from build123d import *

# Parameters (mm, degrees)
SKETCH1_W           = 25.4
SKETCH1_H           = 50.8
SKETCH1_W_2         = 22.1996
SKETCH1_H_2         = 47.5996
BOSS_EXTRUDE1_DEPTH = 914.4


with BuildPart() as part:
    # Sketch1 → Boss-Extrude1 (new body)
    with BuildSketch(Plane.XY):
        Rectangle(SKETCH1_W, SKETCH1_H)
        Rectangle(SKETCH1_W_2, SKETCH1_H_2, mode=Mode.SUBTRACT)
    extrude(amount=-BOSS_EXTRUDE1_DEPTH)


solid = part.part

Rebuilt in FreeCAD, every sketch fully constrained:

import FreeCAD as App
import Part
import Sketcher
from FreeCAD import Vector
Q = App.Units.Quantity

doc = App.newDocument("Part")
body = doc.addObject("PartDesign::Body", "Body")

# Sketch on XY plane
sketch1 = body.newObject("Sketcher::SketchObject", "Sketch")
sketch1.AttachmentSupport = (doc.getObject("XY_Plane"), [""])
sketch1.MapMode = "FlatFace"
sketch1.addGeometry([
    Part.LineSegment(Vector(-13, 25, 0), Vector(-13, -25, 0)),  # 0
    Part.LineSegment(Vector(-13, -25, 0), Vector(13, -25, 0)),  # 1
    Part.LineSegment(Vector(13, -25, 0), Vector(13, 25, 0)),  # 2
    Part.LineSegment(Vector(13, 25, 0), Vector(-13, 25, 0)),  # 3
    Part.LineSegment(Vector(11, -24, 0), Vector(-11, -24, 0)),  # 4
    Part.LineSegment(Vector(-11, -24, 0), Vector(-11, 24, 0)),  # 5
    Part.LineSegment(Vector(-11, 24, 0), Vector(11, 24, 0)),  # 6
    Part.LineSegment(Vector(11, 24, 0), Vector(11, -24, 0)),  # 7
], False)
sketch1.addConstraint([
    Sketcher.Constraint("Coincident", 0, 2, 1, 1),
    Sketcher.Constraint("Coincident", 1, 2, 2, 1),
    Sketcher.Constraint("Coincident", 2, 2, 3, 1),
    Sketcher.Constraint("Coincident", 3, 2, 0, 1),
    Sketcher.Constraint("Coincident", 4, 2, 5, 1),
    Sketcher.Constraint("Coincident", 5, 2, 6, 1),
    Sketcher.Constraint("Coincident", 6, 2, 7, 1),
    Sketcher.Constraint("Coincident", 7, 2, 4, 1),
    Sketcher.Constraint("Vertical", 0),
    Sketcher.Constraint("Horizontal", 1),
    Sketcher.Constraint("Vertical", 2),
    Sketcher.Constraint("Horizontal", 3),
    Sketcher.Constraint("Horizontal", 4),
    Sketcher.Constraint("Vertical", 5),
    Sketcher.Constraint("Horizontal", 6),
    Sketcher.Constraint("Vertical", 7),
    Sketcher.Constraint("Symmetric", 0, 2, 2, 2, -1, 1),
    Sketcher.Constraint("Symmetric", 4, 2, 6, 2, -1, 1),
    Sketcher.Constraint("DistanceX", 1, 1, 1, 2, Q("1 in")),
    Sketcher.Constraint("DistanceY", 0, 2, 0, 1, Q("2 in")),
    Sketcher.Constraint("DistanceX", 4, 2, 4, 1, Q("0.874 in")),
    Sketcher.Constraint("DistanceY", 5, 1, 5, 2, Q("1.874 in")),
])
pad1 = body.newObject("PartDesign::Pad", "Pad")
pad1.Profile = sketch1
pad1.Length = Q("36 in")
pad1.Reversed = True

doc.recompute()
